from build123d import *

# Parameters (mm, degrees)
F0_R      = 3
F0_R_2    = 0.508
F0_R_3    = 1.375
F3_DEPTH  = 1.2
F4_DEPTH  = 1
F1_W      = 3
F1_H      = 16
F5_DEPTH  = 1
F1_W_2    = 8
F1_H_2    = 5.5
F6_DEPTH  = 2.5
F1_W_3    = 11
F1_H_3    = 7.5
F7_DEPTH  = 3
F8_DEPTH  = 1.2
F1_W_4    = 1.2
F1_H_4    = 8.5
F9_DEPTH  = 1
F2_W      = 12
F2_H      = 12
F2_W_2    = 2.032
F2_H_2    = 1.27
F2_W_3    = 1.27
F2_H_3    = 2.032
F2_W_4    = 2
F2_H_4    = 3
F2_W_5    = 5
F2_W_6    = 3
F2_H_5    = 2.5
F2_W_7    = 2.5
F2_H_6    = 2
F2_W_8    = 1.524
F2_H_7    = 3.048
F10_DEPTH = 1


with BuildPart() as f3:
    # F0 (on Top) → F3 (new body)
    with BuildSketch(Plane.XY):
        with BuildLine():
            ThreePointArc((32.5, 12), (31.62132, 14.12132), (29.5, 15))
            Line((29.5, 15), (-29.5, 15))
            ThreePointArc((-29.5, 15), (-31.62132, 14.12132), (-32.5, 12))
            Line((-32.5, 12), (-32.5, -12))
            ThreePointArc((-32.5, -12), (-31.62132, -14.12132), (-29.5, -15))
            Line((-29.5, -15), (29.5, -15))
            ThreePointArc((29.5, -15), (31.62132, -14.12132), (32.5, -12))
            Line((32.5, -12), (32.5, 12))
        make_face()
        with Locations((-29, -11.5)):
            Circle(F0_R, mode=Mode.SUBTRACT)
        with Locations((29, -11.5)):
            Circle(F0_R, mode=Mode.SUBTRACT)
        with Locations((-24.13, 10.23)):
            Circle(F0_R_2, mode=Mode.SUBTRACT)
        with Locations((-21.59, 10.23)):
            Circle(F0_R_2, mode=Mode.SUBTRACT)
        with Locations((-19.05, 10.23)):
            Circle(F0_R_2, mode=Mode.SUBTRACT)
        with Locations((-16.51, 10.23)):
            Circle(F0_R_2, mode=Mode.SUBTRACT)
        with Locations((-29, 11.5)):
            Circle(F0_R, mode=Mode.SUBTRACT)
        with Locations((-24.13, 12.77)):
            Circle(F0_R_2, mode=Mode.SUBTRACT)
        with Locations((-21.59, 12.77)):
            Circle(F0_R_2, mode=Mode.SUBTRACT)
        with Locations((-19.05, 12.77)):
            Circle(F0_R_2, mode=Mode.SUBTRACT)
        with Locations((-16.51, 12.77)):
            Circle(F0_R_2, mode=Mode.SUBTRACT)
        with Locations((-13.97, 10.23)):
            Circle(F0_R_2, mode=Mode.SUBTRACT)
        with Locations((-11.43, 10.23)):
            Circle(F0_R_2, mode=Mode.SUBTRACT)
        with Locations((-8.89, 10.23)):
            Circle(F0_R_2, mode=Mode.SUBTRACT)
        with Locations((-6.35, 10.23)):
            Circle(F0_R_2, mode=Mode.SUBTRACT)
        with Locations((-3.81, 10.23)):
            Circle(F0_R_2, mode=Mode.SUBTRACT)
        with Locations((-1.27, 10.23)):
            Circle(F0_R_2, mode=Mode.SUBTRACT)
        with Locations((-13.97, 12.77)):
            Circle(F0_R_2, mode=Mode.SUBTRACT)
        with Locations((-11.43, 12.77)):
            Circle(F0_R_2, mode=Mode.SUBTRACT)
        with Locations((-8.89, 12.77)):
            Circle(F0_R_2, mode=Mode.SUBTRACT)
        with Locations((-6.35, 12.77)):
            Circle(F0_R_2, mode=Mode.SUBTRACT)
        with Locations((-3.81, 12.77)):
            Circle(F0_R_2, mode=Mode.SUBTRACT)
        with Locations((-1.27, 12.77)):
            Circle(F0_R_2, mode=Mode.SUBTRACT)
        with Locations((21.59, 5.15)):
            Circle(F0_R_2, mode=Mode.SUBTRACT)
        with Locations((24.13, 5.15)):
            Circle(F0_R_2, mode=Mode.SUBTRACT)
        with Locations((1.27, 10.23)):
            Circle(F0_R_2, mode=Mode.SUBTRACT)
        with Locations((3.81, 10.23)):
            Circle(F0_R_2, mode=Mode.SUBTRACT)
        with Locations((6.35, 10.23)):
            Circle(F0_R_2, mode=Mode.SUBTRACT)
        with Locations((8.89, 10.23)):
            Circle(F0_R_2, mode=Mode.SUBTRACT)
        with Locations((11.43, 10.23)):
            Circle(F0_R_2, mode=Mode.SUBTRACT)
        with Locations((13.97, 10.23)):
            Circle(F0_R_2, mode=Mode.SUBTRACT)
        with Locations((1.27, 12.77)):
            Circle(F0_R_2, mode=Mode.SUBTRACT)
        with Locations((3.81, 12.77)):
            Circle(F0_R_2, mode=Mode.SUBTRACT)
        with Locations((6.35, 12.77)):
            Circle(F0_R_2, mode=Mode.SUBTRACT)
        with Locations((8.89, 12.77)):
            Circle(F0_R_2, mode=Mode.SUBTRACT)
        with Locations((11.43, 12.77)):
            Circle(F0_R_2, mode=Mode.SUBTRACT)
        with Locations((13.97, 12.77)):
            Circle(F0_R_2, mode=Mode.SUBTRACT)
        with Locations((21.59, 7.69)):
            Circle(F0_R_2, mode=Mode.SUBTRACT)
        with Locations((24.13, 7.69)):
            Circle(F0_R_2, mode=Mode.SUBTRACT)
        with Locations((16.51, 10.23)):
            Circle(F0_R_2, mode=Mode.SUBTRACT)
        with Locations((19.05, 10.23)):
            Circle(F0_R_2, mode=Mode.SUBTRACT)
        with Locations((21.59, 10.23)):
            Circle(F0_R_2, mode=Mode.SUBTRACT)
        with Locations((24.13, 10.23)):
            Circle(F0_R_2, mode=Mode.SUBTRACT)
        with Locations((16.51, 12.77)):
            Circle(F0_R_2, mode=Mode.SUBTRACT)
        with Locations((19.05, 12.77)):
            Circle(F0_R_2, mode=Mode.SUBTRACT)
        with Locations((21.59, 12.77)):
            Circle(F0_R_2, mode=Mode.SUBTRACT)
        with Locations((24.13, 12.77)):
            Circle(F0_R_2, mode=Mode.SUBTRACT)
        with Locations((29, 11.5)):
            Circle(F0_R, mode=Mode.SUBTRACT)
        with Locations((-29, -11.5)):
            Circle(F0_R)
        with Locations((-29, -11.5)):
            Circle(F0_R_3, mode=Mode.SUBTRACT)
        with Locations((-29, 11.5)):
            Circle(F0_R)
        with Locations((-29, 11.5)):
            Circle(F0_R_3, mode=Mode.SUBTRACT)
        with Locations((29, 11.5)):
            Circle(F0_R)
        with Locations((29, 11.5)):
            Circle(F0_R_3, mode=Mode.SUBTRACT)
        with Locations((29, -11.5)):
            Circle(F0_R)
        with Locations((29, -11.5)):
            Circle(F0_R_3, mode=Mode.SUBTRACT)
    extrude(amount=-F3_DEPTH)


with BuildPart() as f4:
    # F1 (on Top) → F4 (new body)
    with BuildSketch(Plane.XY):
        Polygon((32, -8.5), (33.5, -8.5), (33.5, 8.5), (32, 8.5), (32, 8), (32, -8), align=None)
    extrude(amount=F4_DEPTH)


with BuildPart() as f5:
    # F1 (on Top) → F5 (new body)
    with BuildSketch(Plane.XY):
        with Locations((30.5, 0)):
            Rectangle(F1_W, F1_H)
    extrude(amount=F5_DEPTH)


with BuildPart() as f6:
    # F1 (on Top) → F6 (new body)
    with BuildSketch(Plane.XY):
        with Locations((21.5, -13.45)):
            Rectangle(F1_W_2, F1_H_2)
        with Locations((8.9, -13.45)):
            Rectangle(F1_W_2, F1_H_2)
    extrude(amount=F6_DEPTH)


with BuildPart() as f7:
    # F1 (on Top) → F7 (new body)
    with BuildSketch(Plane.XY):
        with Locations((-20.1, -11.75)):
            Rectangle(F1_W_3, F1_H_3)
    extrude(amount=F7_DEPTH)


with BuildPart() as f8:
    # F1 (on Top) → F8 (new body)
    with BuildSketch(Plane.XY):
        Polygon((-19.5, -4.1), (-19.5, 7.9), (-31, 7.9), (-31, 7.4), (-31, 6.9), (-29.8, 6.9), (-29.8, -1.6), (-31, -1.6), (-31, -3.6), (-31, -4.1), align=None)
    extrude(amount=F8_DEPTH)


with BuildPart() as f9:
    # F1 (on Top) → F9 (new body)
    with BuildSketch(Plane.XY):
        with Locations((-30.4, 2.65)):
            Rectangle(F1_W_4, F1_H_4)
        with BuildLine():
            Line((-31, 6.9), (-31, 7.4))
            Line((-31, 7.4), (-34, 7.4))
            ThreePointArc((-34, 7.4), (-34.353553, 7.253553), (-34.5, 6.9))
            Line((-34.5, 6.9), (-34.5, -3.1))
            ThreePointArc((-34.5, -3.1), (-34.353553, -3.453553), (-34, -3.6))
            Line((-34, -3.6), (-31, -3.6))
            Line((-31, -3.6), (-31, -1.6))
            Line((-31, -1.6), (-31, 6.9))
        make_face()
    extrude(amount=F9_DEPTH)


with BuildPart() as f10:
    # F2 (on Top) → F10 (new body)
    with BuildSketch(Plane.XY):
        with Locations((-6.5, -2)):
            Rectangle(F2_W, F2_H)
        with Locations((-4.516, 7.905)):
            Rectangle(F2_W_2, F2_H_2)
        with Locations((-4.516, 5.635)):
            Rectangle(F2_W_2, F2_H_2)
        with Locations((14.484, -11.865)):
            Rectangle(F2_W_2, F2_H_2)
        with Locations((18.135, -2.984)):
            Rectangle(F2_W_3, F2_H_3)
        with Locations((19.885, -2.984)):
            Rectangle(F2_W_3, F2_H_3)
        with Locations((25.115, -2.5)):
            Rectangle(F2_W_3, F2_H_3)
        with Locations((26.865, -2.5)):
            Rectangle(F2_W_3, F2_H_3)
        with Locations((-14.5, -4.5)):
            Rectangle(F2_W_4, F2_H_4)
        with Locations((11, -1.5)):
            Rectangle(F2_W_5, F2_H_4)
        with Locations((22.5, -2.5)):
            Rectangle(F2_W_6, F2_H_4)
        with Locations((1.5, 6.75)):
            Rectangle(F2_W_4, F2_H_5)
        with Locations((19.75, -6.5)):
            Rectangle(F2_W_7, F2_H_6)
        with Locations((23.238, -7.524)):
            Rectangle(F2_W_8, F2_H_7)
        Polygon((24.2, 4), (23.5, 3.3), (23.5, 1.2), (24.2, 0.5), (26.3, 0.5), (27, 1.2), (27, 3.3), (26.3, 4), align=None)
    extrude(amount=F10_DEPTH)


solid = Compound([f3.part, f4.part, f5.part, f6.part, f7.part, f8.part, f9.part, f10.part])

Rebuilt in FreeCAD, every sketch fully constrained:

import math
import FreeCAD as App
import Part
import Sketcher
from FreeCAD import Vector


def add_polygon(sketch, points):
    """Adds a closed chain of lines whose ends are joined by coincident constraints."""
    first, n = sketch.GeometryCount, len(points)
    for a, b in zip(points, points[1:] + points[:1]):
        sketch.addGeometry(Part.LineSegment(App.Vector(*a, 0), App.Vector(*b, 0)), False)
    for i in range(n):
        sketch.addConstraint(Sketcher.Constraint("Coincident", first + i, 2, first + (i + 1) % n, 1))

doc = App.newDocument("Part")
body = doc.addObject("PartDesign::Body", "Body")

sketch1 = doc.addObject("Sketcher::SketchObject", "Sketch")
body.addObject(sketch1)
sketch1.AttachmentSupport = (doc.XY_Plane, [""])
sketch1.MapMode = "FlatFace"
sketch1.addGeometry([
    Part.ArcOfCircle(Part.Circle(Vector(29.5, 12, 0), Vector(0, 0, 1), 3), math.radians(0), math.radians(90)),
    Part.LineSegment(Vector(29.5, 15, 0), Vector(-29.5, 15, 0)),
    Part.ArcOfCircle(Part.Circle(Vector(-29.5, 12, 0), Vector(0, 0, 1), 3), math.radians(90), math.radians(180)),
    Part.LineSegment(Vector(-32.5, 12, 0), Vector(-32.5, -12, 0)),
    Part.ArcOfCircle(Part.Circle(Vector(-29.5, -12, 0), Vector(0, 0, 1), 3), math.radians(-180), math.radians(-90)),
    Part.LineSegment(Vector(-29.5, -15, 0), Vector(29.5, -15, 0)),
    Part.ArcOfCircle(Part.Circle(Vector(29.5, -12, 0), Vector(0, 0, 1), 3), math.radians(-90), math.radians(0)),
    Part.LineSegment(Vector(32.5, -12, 0), Vector(32.5, 12, 0)),
    Part.Circle(Vector(-29, -11.5, 0), Vector(0, 0, 1), 1.4),
    Part.Circle(Vector(29, -11.5, 0), Vector(0, 0, 1), 1.4),
    Part.Circle(Vector(-29, 11.5, 0), Vector(0, 0, 1), 1.4),
    Part.Circle(Vector(-24.1, 10.2, 0), Vector(0, 0, 1), 0.5),
    Part.Circle(Vector(-24.1, 12.8, 0), Vector(0, 0, 1), 0.5),
    Part.Circle(Vector(-21.6, 10.2, 0), Vector(0, 0, 1), 0.5),
    Part.Circle(Vector(-19.1, 10.2, 0), Vector(0, 0, 1), 0.5),
    Part.Circle(Vector(-16.5, 10.2, 0), Vector(0, 0, 1), 0.5),
    Part.Circle(Vector(-21.6, 12.8, 0), Vector(0, 0, 1), 0.5),
    Part.Circle(Vector(-19.1, 12.8, 0), Vector(0, 0, 1), 0.5),
    Part.Circle(Vector(-16.5, 12.8, 0), Vector(0, 0, 1), 0.5),
    Part.Circle(Vector(-14, 10.2, 0), Vector(0, 0, 1), 0.5),
    Part.Circle(Vector(-11.4, 10.2, 0), Vector(0, 0, 1), 0.5),
    Part.Circle(Vector(-8.9, 10.2, 0), Vector(0, 0, 1), 0.5),
    Part.Circle(Vector(-14, 12.8, 0), Vector(0, 0, 1), 0.5),
    Part.Circle(Vector(-11.4, 12.8, 0), Vector(0, 0, 1), 0.5),
    Part.Circle(Vector(-8.9, 12.8, 0), Vector(0, 0, 1), 0.5),
    Part.Circle(Vector(-6.3, 10.2, 0), Vector(0, 0, 1), 0.5),
    Part.Circle(Vector(-3.8, 10.2, 0), Vector(0, 0, 1), 0.5),
    Part.Circle(Vector(-1.3, 10.2, 0), Vector(0, 0, 1), 0.5),
    Part.Circle(Vector(-6.3, 12.8, 0), Vector(0, 0, 1), 0.5),
    Part.Circle(Vector(-3.8, 12.8, 0), Vector(0, 0, 1), 0.5),
    Part.Circle(Vector(-1.3, 12.8, 0), Vector(0, 0, 1), 0.5),
    Part.Circle(Vector(21.6, 5.2, 0), Vector(0, 0, 1), 0.5),
    Part.Circle(Vector(24.1, 5.2, 0), Vector(0, 0, 1), 0.5),
    Part.Circle(Vector(1.3, 10.2, 0), Vector(0, 0, 1), 0.5),
    Part.Circle(Vector(3.8, 10.2, 0), Vector(0, 0, 1), 0.5),
    Part.Circle(Vector(6.3, 10.2, 0), Vector(0, 0, 1), 0.5),
    Part.Circle(Vector(1.3, 12.8, 0), Vector(0, 0, 1), 0.5),
    Part.Circle(Vector(3.8, 12.8, 0), Vector(0, 0, 1), 0.5),
    Part.Circle(Vector(6.3, 12.8, 0), Vector(0, 0, 1), 0.5),
    Part.Circle(Vector(8.9, 10.2, 0), Vector(0, 0, 1), 0.5),
    Part.Circle(Vector(11.4, 10.2, 0), Vector(0, 0, 1), 0.5),
    Part.Circle(Vector(14, 10.2, 0), Vector(0, 0, 1), 0.5),
    Part.Circle(Vector(8.9, 12.8, 0), Vector(0, 0, 1), 0.5),
    Part.Circle(Vector(11.4, 12.8, 0), Vector(0, 0, 1), 0.5),
    Part.Circle(Vector(14, 12.8, 0), Vector(0, 0, 1), 0.5),
    Part.Circle(Vector(21.6, 7.7, 0), Vector(0, 0, 1), 0.5),
    Part.Circle(Vector(24.1, 7.7, 0), Vector(0, 0, 1), 0.5),
    Part.Circle(Vector(16.5, 10.2, 0), Vector(0, 0, 1), 0.5),
    Part.Circle(Vector(19.1, 10.2, 0), Vector(0, 0, 1), 0.5),
    Part.Circle(Vector(21.6, 10.2, 0), Vector(0, 0, 1), 0.5),
    Part.Circle(Vector(16.5, 12.8, 0), Vector(0, 0, 1), 0.5),
    Part.Circle(Vector(19.1, 12.8, 0), Vector(0, 0, 1), 0.5),
    Part.Circle(Vector(21.6, 12.8, 0), Vector(0, 0, 1), 0.5),
    Part.Circle(Vector(24.1, 10.2, 0), Vector(0, 0, 1), 0.5),
    Part.Circle(Vector(29, 11.5, 0), Vector(0, 0, 1), 1.4),
    Part.Circle(Vector(24.1, 12.8, 0), Vector(0, 0, 1), 0.5),
], False)
sketch1.addConstraint([
    Sketcher.Constraint("Tangent", 0, 2, 1, 1),
    Sketcher.Constraint("Tangent", 1, 2, 2, 1),
    Sketcher.Constraint("Tangent", 2, 2, 3, 1),
    Sketcher.Constraint("Tangent", 3, 2, 4, 1),
    Sketcher.Constraint("Tangent", 4, 2, 5, 1),
    Sketcher.Constraint("Tangent", 5, 2, 6, 1),
    Sketcher.Constraint("Tangent", 6, 2, 7, 1),
    Sketcher.Constraint("Tangent", 7, 2, 0, 1),
    Sketcher.Constraint("Horizontal", 1),
    Sketcher.Constraint("Vertical", 3),
    Sketcher.Constraint("Horizontal", 5),
    Sketcher.Constraint("Vertical", 7),
    Sketcher.Constraint("Equal", 0, 2),
    Sketcher.Constraint("Equal", 2, 4),
    Sketcher.Constraint("Equal", 4, 6),
    Sketcher.Constraint("Equal", 8, 9),
    Sketcher.Constraint("Equal", 9, 10),
    Sketcher.Constraint("Equal", 11, 12),
    Sketcher.Constraint("Equal", 12, 13),
    Sketcher.Constraint("Equal", 13, 14),
    Sketcher.Constraint("Equal", 14, 15),
    Sketcher.Constraint("Equal", 15, 16),
    Sketcher.Constraint("Equal", 16, 17),
    Sketcher.Constraint("Equal", 17, 18),
    Sketcher.Constraint("Equal", 18, 19),
    Sketcher.Constraint("Equal", 19, 20),
    Sketcher.Constraint("Equal", 20, 21),
    Sketcher.Constraint("Equal", 21, 22),
    Sketcher.Constraint("Equal", 22, 23),
    Sketcher.Constraint("Equal", 23, 24),
    Sketcher.Constraint("Equal", 24, 25),
    Sketcher.Constraint("Equal", 25, 26),
    Sketcher.Constraint("Equal", 26, 27),
    Sketcher.Constraint("Equal", 27, 28),
    Sketcher.Constraint("Equal", 28, 29),
    Sketcher.Constraint("Equal", 29, 30),
    Sketcher.Constraint("Equal", 30, 31),
    Sketcher.Constraint("Equal", 31, 32),
    Sketcher.Constraint("Equal", 32, 33),
    Sketcher.Constraint("Equal", 33, 34),
    Sketcher.Constraint("Equal", 34, 35),
    Sketcher.Constraint("Equal", 35, 36),
    Sketcher.Constraint("Equal", 36, 37),
    Sketcher.Constraint("Equal", 37, 38),
    Sketcher.Constraint("Equal", 38, 39),
    Sketcher.Constraint("Equal", 39, 40),
    Sketcher.Constraint("Equal", 40, 41),
    Sketcher.Constraint("Equal", 41, 42),
    Sketcher.Constraint("Equal", 42, 43),
    Sketcher.Constraint("Equal", 43, 44),
    Sketcher.Constraint("Equal", 44, 45),
    Sketcher.Constraint("Equal", 45, 46),
    Sketcher.Constraint("Equal", 46, 47),
    Sketcher.Constraint("Equal", 47, 48),
    Sketcher.Constraint("Equal", 48, 49),
    Sketcher.Constraint("Equal", 49, 50),
    Sketcher.Constraint("Equal", 50, 51),
    Sketcher.Constraint("Equal", 51, 52),
    Sketcher.Constraint("Equal", 52, 53),
    Sketcher.Constraint("Equal", 10, 54),
    Sketcher.Constraint("Equal", 53, 55),
    Sketcher.Constraint("Symmetric", 0, 3, 4, 3, -1, 1),
    Sketcher.Constraint("Symmetric", 9, 3, 10, 3, -1, 1),
    Sketcher.Constraint("Symmetric", 8, 3, 54, 3, -1, 1),
    Sketcher.Constraint("Symmetric", 8, 3, 9, 3, -2),
    Sketcher.Constraint("Symmetric", 27, 3, 33, 3, -2),
    Sketcher.Constraint("Symmetric", 26, 3, 34, 3, -2),
    Sketcher.Constraint("Symmetric", 25, 3, 35, 3, -2),
    Sketcher.Constraint("Symmetric", 30, 3, 36, 3, -2),
    Sketcher.Constraint("Symmetric", 29, 3, 37, 3, -2),
    Sketcher.Constraint("Symmetric", 28, 3, 38, 3, -2),
    Sketcher.Constraint("Symmetric", 21, 3, 39, 3, -2),
    Sketcher.Constraint("Symmetric", 20, 3, 40, 3, -2),
    Sketcher.Constraint("Symmetric", 19, 3, 41, 3, -2),
    Sketcher.Constraint("Symmetric", 24, 3, 42, 3, -2),
    Sketcher.Constraint("Symmetric", 23, 3, 43, 3, -2),
    Sketcher.Constraint("Symmetric", 22, 3, 44, 3, -2),
    Sketcher.Constraint("Symmetric", 15, 3, 47, 3, -2),
    Sketcher.Constraint("Symmetric", 14, 3, 48, 3, -2),
    Sketcher.Constraint("Symmetric", 13, 3, 49, 3, -2),
    Sketcher.Constraint("Symmetric", 18, 3, 50, 3, -2),
    Sketcher.Constraint("Symmetric", 17, 3, 51, 3, -2),
    Sketcher.Constraint("Symmetric", 16, 3, 52, 3, -2),
    Sketcher.Constraint("Symmetric", 11, 3, 53, 3, -2),
    Sketcher.Constraint("Symmetric", 12, 3, 55, 3, -2),
    Sketcher.Constraint("Horizontal", 11, 3, 13, 3),
    Sketcher.Constraint("Horizontal", 13, 3, 14, 3),
    Sketcher.Constraint("Horizontal", 14, 3, 15, 3),
    Sketcher.Constraint("Horizontal", 12, 3, 16, 3),
    Sketcher.Constraint("Horizontal", 16, 3, 17, 3),
    Sketcher.Constraint("Horizontal", 17, 3, 18, 3),
    Sketcher.Constraint("Horizontal", 15, 3, 19, 3),
    Sketcher.Constraint("Horizontal", 19, 3, 20, 3),
    Sketcher.Constraint("Horizontal", 20, 3, 21, 3),
    Sketcher.Constraint("Horizontal", 18, 3, 22, 3),
    Sketcher.Constraint("Horizontal", 22, 3, 23, 3),
    Sketcher.Constraint("Horizontal", 23, 3, 24, 3),
    Sketcher.Constraint("Horizontal", 21, 3, 25, 3),
    Sketcher.Constraint("Horizontal", 25, 3, 26, 3),
    Sketcher.Constraint("Horizontal", 26, 3, 27, 3),
    Sketcher.Constraint("Horizontal", 24, 3, 28, 3),
    Sketcher.Constraint("Horizontal", 28, 3, 29, 3),
    Sketcher.Constraint("Horizontal", 29, 3, 30, 3),
    Sketcher.Constraint("Horizontal", 31, 3, 32, 3),
    Sketcher.Constraint("Horizontal", 45, 3, 46, 3),
    Sketcher.Constraint("Vertical", 11, 3, 12, 3),
    Sketcher.Constraint("Vertical", 13, 3, 16, 3),
    Sketcher.Constraint("Vertical", 14, 3, 17, 3),
    Sketcher.Constraint("Vertical", 15, 3, 18, 3),
    Sketcher.Constraint("Vertical", 19, 3, 22, 3),
    Sketcher.Constraint("Vertical", 20, 3, 23, 3),
    Sketcher.Constraint("Vertical", 21, 3, 24, 3),
    Sketcher.Constraint("Vertical", 25, 3, 28, 3),
    Sketcher.Constraint("Vertical", 26, 3, 29, 3),
    Sketcher.Constraint("Vertical", 27, 3, 30, 3),
    Sketcher.Constraint("Vertical", 31, 3, 45, 3),
    Sketcher.Constraint("Vertical", 32, 3, 46, 3),
    Sketcher.Constraint("Vertical", 45, 3, 49, 3),
    Sketcher.Constraint("Vertical", 46, 3, 53, 3),
    Sketcher.Constraint("Radius", 0, 3.000001),
    Sketcher.Constraint("Diameter", 8, 2.75),
    Sketcher.Constraint("DistanceX", 1, 2, 1, 1, 59.0),
    Sketcher.Constraint("DistanceY", 3, 2, 3, 1, 24.0),
    Sketcher.Constraint("Diameter", 11, 1.016),
    Sketcher.Constraint("DistanceX", 8, 3, -1, 1, 29.0),
    Sketcher.Constraint("DistanceY", 8, 3, 10, 3, 23.0),
    Sketcher.Constraint("DistanceX", 27, 3, 32, 3, 25.4),
    Sketcher.Constraint("DistanceX", 11, 3, -1, 1, 24.13),
    Sketcher.Constraint("DistanceY", -1, 1, 11, 3, 10.23),
    Sketcher.Constraint("DistanceY", -1, 1, 12, 3, 12.77),
    Sketcher.Constraint("DistanceX", 13, 3, -1, 1, 21.59),
    Sketcher.Constraint("DistanceX", 14, 3, -1, 1, 19.05),
    Sketcher.Constraint("DistanceX", 15, 3, -1, 1, 16.51),
    Sketcher.Constraint("DistanceX", 19, 3, -1, 1, 13.97),
    Sketcher.Constraint("DistanceX", 20, 3, -1, 1, 11.43),
    Sketcher.Constraint("DistanceX", 21, 3, -1, 1, 8.89),
    Sketcher.Constraint("DistanceX", 25, 3, -1, 1, 6.35),
    Sketcher.Constraint("DistanceX", 26, 3, -1, 1, 3.81),
    Sketcher.Constraint("DistanceY", -1, 1, 31, 3, 5.15),
    Sketcher.Constraint("DistanceY", -1, 1, 45, 3, 7.69),
])
pad1 = doc.addObject("PartDesign::Pad", "Pad")
body.addObject(pad1)
pad1.Profile = sketch1
pad1.Length = 1.2
pad1.Reversed = True
body2 = doc.addObject("PartDesign::Body", "Body001")

sketch2 = doc.addObject("Sketcher::SketchObject", "Sketch001")
body2.addObject(sketch2)
sketch2.AttachmentSupport = (doc.getObject("XY_Plane001"), [""])
sketch2.MapMode = "FlatFace"
add_polygon(sketch2, [(32, -8.5), (33.5, -8.5), (33.5, 8.5), (32, 8.5)])
sketch2.addConstraint([
    Sketcher.Constraint("Horizontal", 0),
    Sketcher.Constraint("Vertical", 1),
    Sketcher.Constraint("Horizontal", 2),
    Sketcher.Constraint("Vertical", 3),
    Sketcher.Constraint("DistanceY", 1, 1, 1, 2, 17.0),
    Sketcher.Constraint("DistanceX", 0, 1, 0, 2, 1.5),
    Sketcher.Constraint("DistanceX", -1, 1, 2, 2, 32.0),
    Sketcher.Constraint("DistanceY", 0, 2, -1, 1, 8.5),
])
pad2 = doc.addObject("PartDesign::Pad", "Pad001")
body2.addObject(pad2)
pad2.Profile = sketch2
pad2.Length = 1
body3 = doc.addObject("PartDesign::Body", "Body002")

sketch3 = doc.addObject("Sketcher::SketchObject", "Sketch002")
body3.addObject(sketch3)
sketch3.AttachmentSupport = (doc.getObject("XY_Plane002"), [""])
sketch3.MapMode = "FlatFace"
add_polygon(sketch3, [(29, 8), (29, -8), (32, -8), (32, 8)])
sketch3.addConstraint([
    Sketcher.Constraint("Vertical", 0),
    Sketcher.Constraint("Horizontal", 1),
    Sketcher.Constraint("Vertical", 2),
    Sketcher.Constraint("Horizontal", 3),
    Sketcher.Constraint("DistanceX", 1, 1, 1, 2, 3.0),
    Sketcher.Constraint("DistanceY", 0, 2, 0, 1, 16.0),
    Sketcher.Constraint("DistanceX", -1, 1, 0, 2, 29.0),
    Sketcher.Constraint("DistanceY", 0, 2, -1, 1, 8.0),
])
pad3 = doc.addObject("PartDesign::Pad", "Pad002")
body3.addObject(pad3)
pad3.Profile = sketch3
pad3.Length = 1
body4 = doc.addObject("PartDesign::Body", "Body003")
body4.AllowCompound = True

sketch4 = doc.addObject("Sketcher::SketchObject", "Sketch003")
body4.addObject(sketch4)
sketch4.AttachmentSupport = (doc.getObject("XY_Plane003"), [""])
sketch4.MapMode = "FlatFace"
add_polygon(sketch4, [(18, -11), (18, -16), (26, -16), (26, -11)])
add_polygon(sketch4, [(5, -11), (5, -16), (13, -16), (13, -11)])
sketch4.addConstraint([
    Sketcher.Constraint("Vertical", 0),
    Sketcher.Constraint("Horizontal", 1),
    Sketcher.Constraint("Vertical", 2),
    Sketcher.Constraint("Horizontal", 3),
    Sketcher.Constraint("Vertical", 4),
    Sketcher.Constraint("Horizontal", 5),
    Sketcher.Constraint("Vertical", 6),
    Sketcher.Constraint("Horizontal", 7),
    Sketcher.Constraint("Horizontal", 1, 2, 4, 2),
    Sketcher.Constraint("Horizontal", 3, 2, 6, 2),
    Sketcher.Constraint("Equal", 3, 5),
    Sketcher.Constraint("DistanceX", 1, 1, 1, 2, 8.0),
    Sketcher.Constraint("DistanceY", 0, 2, 0, 1, 5.5),
    Sketcher.Constraint("DistanceX", -1, 1, 0, 2, 17.5),
    Sketcher.Constraint("DistanceY", 0, 2, -1, 1, 16.2),
    Sketcher.Constraint("DistanceX", -1, 1, 4, 2, 4.9),
])
pad4 = doc.addObject("PartDesign::Pad", "Pad003")
body4.addObject(pad4)
pad4.Profile = sketch4
pad4.Length = 2.5
body5 = doc.addObject("PartDesign::Body", "Body004")

sketch5 = doc.addObject("Sketcher::SketchObject", "Sketch004")
body5.addObject(sketch5)
sketch5.AttachmentSupport = (doc.getObject("XY_Plane004"), [""])
sketch5.MapMode = "FlatFace"
add_polygon(sketch5, [(-26, -8), (-26, -16), (-15, -16), (-15, -8)])
sketch5.addConstraint([
    Sketcher.Constraint("Vertical", 0),
    Sketcher.Constraint("Horizontal", 1),
    Sketcher.Constraint("Vertical", 2),
    Sketcher.Constraint("Horizontal", 3),
    Sketcher.Constraint("DistanceX", 1, 1, 1, 2, 11.0),
    Sketcher.Constraint("DistanceY", 0, 2, 0, 1, 7.5),
    Sketcher.Constraint("DistanceY", 2, 2, -1, 1, 8.0),
    Sketcher.Constraint("DistanceX", 0, 2, -1, 1, 25.6),
])
pad5 = doc.addObject("PartDesign::Pad", "Pad004")
body5.addObject(pad5)
pad5.Profile = sketch5
pad5.Length = 3
body6 = doc.addObject("PartDesign::Body", "Body005")

sketch6 = doc.addObject("Sketcher::SketchObject", "Sketch005")
body6.addObject(sketch6)
sketch6.AttachmentSupport = (doc.getObject("XY_Plane005"), [""])
sketch6.MapMode = "FlatFace"
add_polygon(sketch6, [(-19.5, -4.1), (-19.5, 7.9), (-31, 7.9), (-31, 6.9), (-29.8, 6.9), (-29.8, -1.6), (-31, -1.6), (-31, -4.1)])
sketch6.addConstraint([
    Sketcher.Constraint("Vertical", 0),
    Sketcher.Constraint("Horizontal", 1),
    Sketcher.Constraint("Vertical", 2),
    Sketcher.Constraint("Horizontal", 3),
    Sketcher.Constraint("Vertical", 4),
    Sketcher.Constraint("Horizontal", 5),
    Sketcher.Constraint("Vertical", 6),
    Sketcher.Constraint("Horizontal", 7),
    Sketcher.Constraint("Vertical", 2, 2, 5, 2),
    Sketcher.Constraint("DistanceY", 0, 1, 0, 2, 12.0),
    Sketcher.Constraint("DistanceY", 2, 2, 2, 1, 1.0),
    Sketcher.Constraint("DistanceX", 1, 2, 1, 1, 11.5),
    Sketcher.Constraint("DistanceX", 3, 1, 3, 2, 1.2),
    Sketcher.Constraint("DistanceY", 4, 2, 4, 1, 8.5),
    Sketcher.Constraint("DistanceX", 1, 2, -1, 1, 31.0),
    Sketcher.Constraint("DistanceY", -1, 1, 0, 2, 7.9),
])
pad6 = doc.addObject("PartDesign::Pad", "Pad005")
body6.addObject(pad6)
pad6.Profile = sketch6
pad6.Length = 1.2
body7 = doc.addObject("PartDesign::Body", "Body006")

sketch7 = doc.addObject("Sketcher::SketchObject", "Sketch006")
body7.addObject(sketch7)
sketch7.AttachmentSupport = (doc.getObject("XY_Plane006"), [""])
sketch7.MapMode = "FlatFace"
sketch7.addGeometry([
    Part.LineSegment(Vector(-31, -1.6, 0), Vector(-29.8, -1.6, 0)),
    Part.LineSegment(Vector(-29.8, -1.6, 0), Vector(-29.8, 6.9, 0)),
    Part.LineSegment(Vector(-29.8, 6.9, 0), Vector(-31, 6.9, 0)),
    Part.LineSegment(Vector(-31, 6.9, 0), Vector(-31, 7.4, 0)),
    Part.LineSegment(Vector(-31, 7.4, 0), Vector(-34, 7.4, 0)),
    Part.ArcOfCircle(Part.Circle(Vector(-34, 6.9, 0), Vector(0, 0, 1), 0.5), math.radians(90), math.radians(180)),
    Part.LineSegment(Vector(-34.5, 6.9, 0), Vector(-34.5, -3.1, 0)),
    Part.ArcOfCircle(Part.Circle(Vector(-34, -3.1, 0), Vector(0, 0, 1), 0.5), math.radians(-180), math.radians(-90)),
    Part.LineSegment(Vector(-34, -3.6, 0), Vector(-31, -3.6, 0)),
    Part.LineSegment(Vector(-31, -3.6, 0), Vector(-31, -1.6, 0)),
], False)
sketch7.addConstraint([
    Sketcher.Constraint("Coincident", 0, 2, 1, 1),
    Sketcher.Constraint("Coincident", 1, 2, 2, 1),
    Sketcher.Constraint("Coincident", 2, 2, 3, 1),
    Sketcher.Constraint("Coincident", 3, 2, 4, 1),
    Sketcher.Constraint("Coincident", 4, 2, 5, 1),
    Sketcher.Constraint("Coincident", 5, 2, 6, 1),
    Sketcher.Constraint("Coincident", 6, 2, 7, 1),
    Sketcher.Constraint("Coincident", 7, 2, 8, 1),
    Sketcher.Constraint("Coincident", 8, 2, 9, 1),
    Sketcher.Constraint("Coincident", 9, 2, 0, 1),
    Sketcher.Constraint("Horizontal", 0),
    Sketcher.Constraint("Vertical", 1),
    Sketcher.Constraint("Horizontal", 2),
    Sketcher.Constraint("Vertical", 3),
    Sketcher.Constraint("Horizontal", 4),
    Sketcher.Constraint("Vertical", 6),
    Sketcher.Constraint("Horizontal", 8),
    Sketcher.Constraint("Vertical", 9),
    Sketcher.Constraint("Equal", 5, 7),
    Sketcher.Constraint("Horizontal", 5, 3, 1, 2),
    Sketcher.Constraint("Horizontal", 2, 2, 5, 2),
    Sketcher.Constraint("Horizontal", 7, 3, 6, 2),
    Sketcher.Constraint("Vertical", 7, 3, 4, 2),
    Sketcher.Constraint("Vertical", 4, 2, 7, 2),
    Sketcher.Constraint("Vertical", 3, 2, 8, 2),
    Sketcher.Constraint("Radius", 5, 0.500001),
    Sketcher.Constraint("DistanceX", 4, 2, 4, 1, 3.0),
    Sketcher.Constraint("DistanceY", 6, 2, 6, 1, 10.0),
    Sketcher.Constraint("DistanceY", 9, 1, 9, 2, 2.0),
    Sketcher.Constraint("DistanceX", 0, 1, 0, 2, 1.2),
    Sketcher.Constraint("DistanceX", 5, 3, -1, 1, 33.999999),
    Sketcher.Constraint("DistanceY", -1, 1, 5, 3, 6.899999),
])
pad7 = doc.addObject("PartDesign::Pad", "Pad006")
body7.addObject(pad7)
pad7.Profile = sketch7
pad7.Length = 1
body8 = doc.addObject("PartDesign::Body", "Body007")
body8.AllowCompound = True

sketch8 = doc.addObject("Sketcher::SketchObject", "Sketch007")
body8.addObject(sketch8)
sketch8.AttachmentSupport = (doc.getObject("XY_Plane007"), [""])
sketch8.MapMode = "FlatFace"
add_polygon(sketch8, [(-12.5, 4), (-12.5, -8), (-0.5, -8), (-0.5, 4)])
add_polygon(sketch8, [(-5.5, 8.5), (-5.5, 7.3), (-3.5, 7.3), (-3.5, 8.5)])
add_polygon(sketch8, [(-5.5, 6.3), (-5.5, 5), (-3.5, 5), (-3.5, 6.3)])
add_polygon(sketch8, [(13.5, -11.2), (13.5, -12.5), (15.5, -12.5), (15.5, -11.2)])
add_polygon(sketch8, [(17.5, -2), (17.5, -4), (18.8, -4), (18.8, -2)])
add_polygon(sketch8, [(19.2, -2), (19.2, -4), (20.5, -4), (20.5, -2)])
add_polygon(sketch8, [(24.5, -1.5), (24.5, -3.5), (25.8, -3.5), (25.8, -1.5)])
add_polygon(sketch8, [(26.2, -1.5), (26.2, -3.5), (27.5, -3.5), (27.5, -1.5)])
add_polygon(sketch8, [(-15.5, -3), (-15.5, -6), (-13.5, -6), (-13.5, -3)])
add_polygon(sketch8, [(8.5, 0), (8.5, -3), (13.5, -3), (13.5, 0)])
add_polygon(sketch8, [(21, -1), (21, -4), (24, -4), (24, -1)])
add_polygon(sketch8, [(0.5, 8), (0.5, 5.5), (2.5, 5.5), (2.5, 8)])
add_polygon(sketch8, [(18.5, -5.5), (18.5, -7.5), (21, -7.5), (21, -5.5)])
add_polygon(sketch8, [(22.5, -6), (22.5, -9), (24, -9), (24, -6)])
add_polygon(sketch8, [(24.2, 4), (23.5, 3.3), (23.5, 1.2), (24.2, 0.5), (26.3, 0.5), (27, 1.2), (27, 3.3), (26.3, 4)])
sketch8.addConstraint([
    Sketcher.Constraint("Vertical", 0),
    Sketcher.Constraint("Horizontal", 1),
    Sketcher.Constraint("Vertical", 2),
    Sketcher.Constraint("Horizontal", 3),
    Sketcher.Constraint("Vertical", 4),
    Sketcher.Constraint("Horizontal", 5),
    Sketcher.Constraint("Vertical", 6),
    Sketcher.Constraint("Horizontal", 7),
    Sketcher.Constraint("Vertical", 8),
    Sketcher.Constraint("Horizontal", 9),
    Sketcher.Constraint("Vertical", 10),
    Sketcher.Constraint("Horizontal", 11),
    Sketcher.Constraint("Vertical", 12),
    Sketcher.Constraint("Horizontal", 13),
    Sketcher.Constraint("Vertical", 14),
    Sketcher.Constraint("Horizontal", 15),
    Sketcher.Constraint("Vertical", 16),
    Sketcher.Constraint("Horizontal", 17),
    Sketcher.Constraint("Vertical", 18),
    Sketcher.Constraint("Horizontal", 19),
    Sketcher.Constraint("Vertical", 20),
    Sketcher.Constraint("Horizontal", 21),
    Sketcher.Constraint("Vertical", 22),
    Sketcher.Constraint("Horizontal", 23),
    Sketcher.Constraint("Vertical", 24),
    Sketcher.Constraint("Horizontal", 25),
    Sketcher.Constraint("Vertical", 26),
    Sketcher.Constraint("Horizontal", 27),
    Sketcher.Constraint("Vertical", 28),
    Sketcher.Constraint("Horizontal", 29),
    Sketcher.Constraint("Vertical", 30),
    Sketcher.Constraint("Horizontal", 31),
    Sketcher.Constraint("Vertical", 32),
    Sketcher.Constraint("Horizontal", 33),
    Sketcher.Constraint("Vertical", 34),
    Sketcher.Constraint("Horizontal", 35),
    Sketcher.Constraint("Vertical", 36),
    Sketcher.Constraint("Horizontal", 37),
    Sketcher.Constraint("Vertical", 38),
    Sketcher.Constraint("Horizontal", 39),
    Sketcher.Constraint("Vertical", 40),
    Sketcher.Constraint("Horizontal", 41),
    Sketcher.Constraint("Vertical", 42),
    Sketcher.Constraint("Horizontal", 43),
    Sketcher.Constraint("Vertical", 44),
    Sketcher.Constraint("Horizontal", 45),
    Sketcher.Constraint("Vertical", 46),
    Sketcher.Constraint("Horizontal", 47),
    Sketcher.Constraint("Vertical", 48),
    Sketcher.Constraint("Horizontal", 49),
    Sketcher.Constraint("Vertical", 50),
    Sketcher.Constraint("Horizontal", 51),
    Sketcher.Constraint("Vertical", 52),
    Sketcher.Constraint("Horizontal", 53),
    Sketcher.Constraint("Vertical", 54),
    Sketcher.Constraint("Horizontal", 55),
    Sketcher.Constraint("Vertical", 57),
    Sketcher.Constraint("Horizontal", 59),
    Sketcher.Constraint("Vertical", 61),
    Sketcher.Constraint("Horizontal", 63),
    Sketcher.Constraint("Symmetric", 1, 2, 47, 2, -1, 1),
    Sketcher.Constraint("Symmetric", 34, 2, 37, 2, -2),
    Sketcher.Constraint("PointOnObject", 38, 2, -1),
    Sketcher.Constraint("Perpendicular", 56, 58),
    Sketcher.Constraint("Perpendicular", 58, 60),
    Sketcher.Constraint("Perpendicular", 60, 62),
    Sketcher.Constraint("Horizontal", 17, 2, 20, 2),
    Sketcher.Constraint("Horizontal", 19, 2, 22, 2),
    Sketcher.Constraint("Horizontal", 25, 2, 28, 2),
    Sketcher.Constraint("Horizontal", 27, 2, 30, 2),
    Sketcher.Constraint("Horizontal", 21, 2, 40, 2),
    Sketcher.Constraint("Horizontal", 33, 2, 54, 2),
    Sketcher.Constraint("Horizontal", 57, 2, 60, 2),
    Sketcher.Constraint("Horizontal", 56, 2, 61, 2),
    Sketcher.Constraint("Horizontal", 3, 2, 62, 2),
    Sketcher.Constraint("Vertical", 7, 2, 8, 2),
    Sketcher.Constraint("Vertical", 6, 2, 9, 2),
    Sketcher.Constraint("Vertical", 43, 2, 49, 2),
    Sketcher.Constraint("Vertical", 42, 2, 53, 2),
    Sketcher.Constraint("Vertical", 59, 2, 62, 2),
    Sketcher.Constraint("Vertical", 58, 2, 63, 2),
    Sketcher.Constraint("Equal", 11, 13),
    Sketcher.Constraint("Equal", 19, 21),
    Sketcher.Constraint("Equal", 23, 25),
    Sketcher.Constraint("Equal", 27, 29),
    Sketcher.Constraint("Equal", 35, 45),
    Sketcher.Constraint("Equal", 3, 0),
    Sketcher.Constraint("Equal", 31, 4),
    Sketcher.Constraint("Equal", 6, 8),
    Sketcher.Constraint("Equal", 10, 12),
    Sketcher.Constraint("Equal", 15, 16),
    Sketcher.Constraint("Equal", 22, 24),
    Sketcher.Constraint("Equal", 43, 32),
    Sketcher.Constraint("Equal", 34, 36),
    Sketcher.Constraint("Equal", 38, 40),
    Sketcher.Constraint("Equal", 51, 44),
    Sketcher.Constraint("Equal", 47, 48),
    Sketcher.Constraint("Equal", 63, 57),
    Sketcher.Constraint("DistanceX", 1, 1, 1, 2, 12.0),
    Sketcher.Constraint("DistanceX", 33, 1, 33, 2, 2.0),
    Sketcher.Constraint("DistanceX", 37, 1, 37, 2, 5.0),
    Sketcher.Constraint("DistanceX", 41, 1, 41, 2, 3.0),
    Sketcher.Constraint("DistanceX", 49, 1, 49, 2, 2.5),
    Sketcher.Constraint("DistanceX", 59, 1, 59, 2, 2.1),
    Sketcher.Constraint("DistanceY", 0, 2, -1, 1, 8.0),
    Sketcher.Constraint("DistanceY", -1, 1, 8, 2, 5.0),
    Sketcher.Constraint("DistanceY", 16, 2, -1, 1, 4.0),
    Sketcher.Constraint("DistanceX", -1, 1, 40, 2, 21.0),
    Sketcher.Constraint("DistanceX", -1, 1, 60, 2, 27.0),
    Sketcher.Constraint("DistanceX", 17, 1, 17, 2, 1.27),
    Sketcher.Constraint("DistanceX", 0, 2, -1, 1, 12.5),
    Sketcher.Constraint("DistanceX", 5, 2, -1, 1, 3.5),
    Sketcher.Constraint("DistanceY", 12, 2, -1, 1, 12.5),
    Sketcher.Constraint("DistanceX", -1, 1, 13, 2, 15.5),
    Sketcher.Constraint("DistanceX", -1, 1, 16, 2, 17.5),
    Sketcher.Constraint("DistanceX", -1, 1, 29, 2, 27.5),
    Sketcher.Constraint("DistanceX", 32, 2, -1, 1, 15.5),
    Sketcher.Constraint("DistanceY", 48, 2, -1, 1, 7.5),
    Sketcher.Constraint("DistanceX", -1, 1, 56, 2, 23.5),
    Sketcher.Constraint("DistanceX", 5, 1, 5, 2, 2.032),
    Sketcher.Constraint("DistanceX", 53, 1, 53, 2, 1.524),
    Sketcher.Constraint("DistanceY", 52, 2, 52, 1, 3.048),
    Sketcher.Constraint("DistanceY", -1, 1, 4, 2, 7.27),
    Sketcher.Constraint("DistanceX", -1, 1, 20, 2, 19.25),
    Sketcher.Constraint("DistanceX", -1, 1, 24, 2, 24.48),
    Sketcher.Constraint("DistanceY", 24, 2, -1, 1, 3.516),
])
pad8 = doc.addObject("PartDesign::Pad", "Pad007")
body8.addObject(pad8)
pad8.Profile = sketch8
pad8.Length = 1

doc.recompute()
